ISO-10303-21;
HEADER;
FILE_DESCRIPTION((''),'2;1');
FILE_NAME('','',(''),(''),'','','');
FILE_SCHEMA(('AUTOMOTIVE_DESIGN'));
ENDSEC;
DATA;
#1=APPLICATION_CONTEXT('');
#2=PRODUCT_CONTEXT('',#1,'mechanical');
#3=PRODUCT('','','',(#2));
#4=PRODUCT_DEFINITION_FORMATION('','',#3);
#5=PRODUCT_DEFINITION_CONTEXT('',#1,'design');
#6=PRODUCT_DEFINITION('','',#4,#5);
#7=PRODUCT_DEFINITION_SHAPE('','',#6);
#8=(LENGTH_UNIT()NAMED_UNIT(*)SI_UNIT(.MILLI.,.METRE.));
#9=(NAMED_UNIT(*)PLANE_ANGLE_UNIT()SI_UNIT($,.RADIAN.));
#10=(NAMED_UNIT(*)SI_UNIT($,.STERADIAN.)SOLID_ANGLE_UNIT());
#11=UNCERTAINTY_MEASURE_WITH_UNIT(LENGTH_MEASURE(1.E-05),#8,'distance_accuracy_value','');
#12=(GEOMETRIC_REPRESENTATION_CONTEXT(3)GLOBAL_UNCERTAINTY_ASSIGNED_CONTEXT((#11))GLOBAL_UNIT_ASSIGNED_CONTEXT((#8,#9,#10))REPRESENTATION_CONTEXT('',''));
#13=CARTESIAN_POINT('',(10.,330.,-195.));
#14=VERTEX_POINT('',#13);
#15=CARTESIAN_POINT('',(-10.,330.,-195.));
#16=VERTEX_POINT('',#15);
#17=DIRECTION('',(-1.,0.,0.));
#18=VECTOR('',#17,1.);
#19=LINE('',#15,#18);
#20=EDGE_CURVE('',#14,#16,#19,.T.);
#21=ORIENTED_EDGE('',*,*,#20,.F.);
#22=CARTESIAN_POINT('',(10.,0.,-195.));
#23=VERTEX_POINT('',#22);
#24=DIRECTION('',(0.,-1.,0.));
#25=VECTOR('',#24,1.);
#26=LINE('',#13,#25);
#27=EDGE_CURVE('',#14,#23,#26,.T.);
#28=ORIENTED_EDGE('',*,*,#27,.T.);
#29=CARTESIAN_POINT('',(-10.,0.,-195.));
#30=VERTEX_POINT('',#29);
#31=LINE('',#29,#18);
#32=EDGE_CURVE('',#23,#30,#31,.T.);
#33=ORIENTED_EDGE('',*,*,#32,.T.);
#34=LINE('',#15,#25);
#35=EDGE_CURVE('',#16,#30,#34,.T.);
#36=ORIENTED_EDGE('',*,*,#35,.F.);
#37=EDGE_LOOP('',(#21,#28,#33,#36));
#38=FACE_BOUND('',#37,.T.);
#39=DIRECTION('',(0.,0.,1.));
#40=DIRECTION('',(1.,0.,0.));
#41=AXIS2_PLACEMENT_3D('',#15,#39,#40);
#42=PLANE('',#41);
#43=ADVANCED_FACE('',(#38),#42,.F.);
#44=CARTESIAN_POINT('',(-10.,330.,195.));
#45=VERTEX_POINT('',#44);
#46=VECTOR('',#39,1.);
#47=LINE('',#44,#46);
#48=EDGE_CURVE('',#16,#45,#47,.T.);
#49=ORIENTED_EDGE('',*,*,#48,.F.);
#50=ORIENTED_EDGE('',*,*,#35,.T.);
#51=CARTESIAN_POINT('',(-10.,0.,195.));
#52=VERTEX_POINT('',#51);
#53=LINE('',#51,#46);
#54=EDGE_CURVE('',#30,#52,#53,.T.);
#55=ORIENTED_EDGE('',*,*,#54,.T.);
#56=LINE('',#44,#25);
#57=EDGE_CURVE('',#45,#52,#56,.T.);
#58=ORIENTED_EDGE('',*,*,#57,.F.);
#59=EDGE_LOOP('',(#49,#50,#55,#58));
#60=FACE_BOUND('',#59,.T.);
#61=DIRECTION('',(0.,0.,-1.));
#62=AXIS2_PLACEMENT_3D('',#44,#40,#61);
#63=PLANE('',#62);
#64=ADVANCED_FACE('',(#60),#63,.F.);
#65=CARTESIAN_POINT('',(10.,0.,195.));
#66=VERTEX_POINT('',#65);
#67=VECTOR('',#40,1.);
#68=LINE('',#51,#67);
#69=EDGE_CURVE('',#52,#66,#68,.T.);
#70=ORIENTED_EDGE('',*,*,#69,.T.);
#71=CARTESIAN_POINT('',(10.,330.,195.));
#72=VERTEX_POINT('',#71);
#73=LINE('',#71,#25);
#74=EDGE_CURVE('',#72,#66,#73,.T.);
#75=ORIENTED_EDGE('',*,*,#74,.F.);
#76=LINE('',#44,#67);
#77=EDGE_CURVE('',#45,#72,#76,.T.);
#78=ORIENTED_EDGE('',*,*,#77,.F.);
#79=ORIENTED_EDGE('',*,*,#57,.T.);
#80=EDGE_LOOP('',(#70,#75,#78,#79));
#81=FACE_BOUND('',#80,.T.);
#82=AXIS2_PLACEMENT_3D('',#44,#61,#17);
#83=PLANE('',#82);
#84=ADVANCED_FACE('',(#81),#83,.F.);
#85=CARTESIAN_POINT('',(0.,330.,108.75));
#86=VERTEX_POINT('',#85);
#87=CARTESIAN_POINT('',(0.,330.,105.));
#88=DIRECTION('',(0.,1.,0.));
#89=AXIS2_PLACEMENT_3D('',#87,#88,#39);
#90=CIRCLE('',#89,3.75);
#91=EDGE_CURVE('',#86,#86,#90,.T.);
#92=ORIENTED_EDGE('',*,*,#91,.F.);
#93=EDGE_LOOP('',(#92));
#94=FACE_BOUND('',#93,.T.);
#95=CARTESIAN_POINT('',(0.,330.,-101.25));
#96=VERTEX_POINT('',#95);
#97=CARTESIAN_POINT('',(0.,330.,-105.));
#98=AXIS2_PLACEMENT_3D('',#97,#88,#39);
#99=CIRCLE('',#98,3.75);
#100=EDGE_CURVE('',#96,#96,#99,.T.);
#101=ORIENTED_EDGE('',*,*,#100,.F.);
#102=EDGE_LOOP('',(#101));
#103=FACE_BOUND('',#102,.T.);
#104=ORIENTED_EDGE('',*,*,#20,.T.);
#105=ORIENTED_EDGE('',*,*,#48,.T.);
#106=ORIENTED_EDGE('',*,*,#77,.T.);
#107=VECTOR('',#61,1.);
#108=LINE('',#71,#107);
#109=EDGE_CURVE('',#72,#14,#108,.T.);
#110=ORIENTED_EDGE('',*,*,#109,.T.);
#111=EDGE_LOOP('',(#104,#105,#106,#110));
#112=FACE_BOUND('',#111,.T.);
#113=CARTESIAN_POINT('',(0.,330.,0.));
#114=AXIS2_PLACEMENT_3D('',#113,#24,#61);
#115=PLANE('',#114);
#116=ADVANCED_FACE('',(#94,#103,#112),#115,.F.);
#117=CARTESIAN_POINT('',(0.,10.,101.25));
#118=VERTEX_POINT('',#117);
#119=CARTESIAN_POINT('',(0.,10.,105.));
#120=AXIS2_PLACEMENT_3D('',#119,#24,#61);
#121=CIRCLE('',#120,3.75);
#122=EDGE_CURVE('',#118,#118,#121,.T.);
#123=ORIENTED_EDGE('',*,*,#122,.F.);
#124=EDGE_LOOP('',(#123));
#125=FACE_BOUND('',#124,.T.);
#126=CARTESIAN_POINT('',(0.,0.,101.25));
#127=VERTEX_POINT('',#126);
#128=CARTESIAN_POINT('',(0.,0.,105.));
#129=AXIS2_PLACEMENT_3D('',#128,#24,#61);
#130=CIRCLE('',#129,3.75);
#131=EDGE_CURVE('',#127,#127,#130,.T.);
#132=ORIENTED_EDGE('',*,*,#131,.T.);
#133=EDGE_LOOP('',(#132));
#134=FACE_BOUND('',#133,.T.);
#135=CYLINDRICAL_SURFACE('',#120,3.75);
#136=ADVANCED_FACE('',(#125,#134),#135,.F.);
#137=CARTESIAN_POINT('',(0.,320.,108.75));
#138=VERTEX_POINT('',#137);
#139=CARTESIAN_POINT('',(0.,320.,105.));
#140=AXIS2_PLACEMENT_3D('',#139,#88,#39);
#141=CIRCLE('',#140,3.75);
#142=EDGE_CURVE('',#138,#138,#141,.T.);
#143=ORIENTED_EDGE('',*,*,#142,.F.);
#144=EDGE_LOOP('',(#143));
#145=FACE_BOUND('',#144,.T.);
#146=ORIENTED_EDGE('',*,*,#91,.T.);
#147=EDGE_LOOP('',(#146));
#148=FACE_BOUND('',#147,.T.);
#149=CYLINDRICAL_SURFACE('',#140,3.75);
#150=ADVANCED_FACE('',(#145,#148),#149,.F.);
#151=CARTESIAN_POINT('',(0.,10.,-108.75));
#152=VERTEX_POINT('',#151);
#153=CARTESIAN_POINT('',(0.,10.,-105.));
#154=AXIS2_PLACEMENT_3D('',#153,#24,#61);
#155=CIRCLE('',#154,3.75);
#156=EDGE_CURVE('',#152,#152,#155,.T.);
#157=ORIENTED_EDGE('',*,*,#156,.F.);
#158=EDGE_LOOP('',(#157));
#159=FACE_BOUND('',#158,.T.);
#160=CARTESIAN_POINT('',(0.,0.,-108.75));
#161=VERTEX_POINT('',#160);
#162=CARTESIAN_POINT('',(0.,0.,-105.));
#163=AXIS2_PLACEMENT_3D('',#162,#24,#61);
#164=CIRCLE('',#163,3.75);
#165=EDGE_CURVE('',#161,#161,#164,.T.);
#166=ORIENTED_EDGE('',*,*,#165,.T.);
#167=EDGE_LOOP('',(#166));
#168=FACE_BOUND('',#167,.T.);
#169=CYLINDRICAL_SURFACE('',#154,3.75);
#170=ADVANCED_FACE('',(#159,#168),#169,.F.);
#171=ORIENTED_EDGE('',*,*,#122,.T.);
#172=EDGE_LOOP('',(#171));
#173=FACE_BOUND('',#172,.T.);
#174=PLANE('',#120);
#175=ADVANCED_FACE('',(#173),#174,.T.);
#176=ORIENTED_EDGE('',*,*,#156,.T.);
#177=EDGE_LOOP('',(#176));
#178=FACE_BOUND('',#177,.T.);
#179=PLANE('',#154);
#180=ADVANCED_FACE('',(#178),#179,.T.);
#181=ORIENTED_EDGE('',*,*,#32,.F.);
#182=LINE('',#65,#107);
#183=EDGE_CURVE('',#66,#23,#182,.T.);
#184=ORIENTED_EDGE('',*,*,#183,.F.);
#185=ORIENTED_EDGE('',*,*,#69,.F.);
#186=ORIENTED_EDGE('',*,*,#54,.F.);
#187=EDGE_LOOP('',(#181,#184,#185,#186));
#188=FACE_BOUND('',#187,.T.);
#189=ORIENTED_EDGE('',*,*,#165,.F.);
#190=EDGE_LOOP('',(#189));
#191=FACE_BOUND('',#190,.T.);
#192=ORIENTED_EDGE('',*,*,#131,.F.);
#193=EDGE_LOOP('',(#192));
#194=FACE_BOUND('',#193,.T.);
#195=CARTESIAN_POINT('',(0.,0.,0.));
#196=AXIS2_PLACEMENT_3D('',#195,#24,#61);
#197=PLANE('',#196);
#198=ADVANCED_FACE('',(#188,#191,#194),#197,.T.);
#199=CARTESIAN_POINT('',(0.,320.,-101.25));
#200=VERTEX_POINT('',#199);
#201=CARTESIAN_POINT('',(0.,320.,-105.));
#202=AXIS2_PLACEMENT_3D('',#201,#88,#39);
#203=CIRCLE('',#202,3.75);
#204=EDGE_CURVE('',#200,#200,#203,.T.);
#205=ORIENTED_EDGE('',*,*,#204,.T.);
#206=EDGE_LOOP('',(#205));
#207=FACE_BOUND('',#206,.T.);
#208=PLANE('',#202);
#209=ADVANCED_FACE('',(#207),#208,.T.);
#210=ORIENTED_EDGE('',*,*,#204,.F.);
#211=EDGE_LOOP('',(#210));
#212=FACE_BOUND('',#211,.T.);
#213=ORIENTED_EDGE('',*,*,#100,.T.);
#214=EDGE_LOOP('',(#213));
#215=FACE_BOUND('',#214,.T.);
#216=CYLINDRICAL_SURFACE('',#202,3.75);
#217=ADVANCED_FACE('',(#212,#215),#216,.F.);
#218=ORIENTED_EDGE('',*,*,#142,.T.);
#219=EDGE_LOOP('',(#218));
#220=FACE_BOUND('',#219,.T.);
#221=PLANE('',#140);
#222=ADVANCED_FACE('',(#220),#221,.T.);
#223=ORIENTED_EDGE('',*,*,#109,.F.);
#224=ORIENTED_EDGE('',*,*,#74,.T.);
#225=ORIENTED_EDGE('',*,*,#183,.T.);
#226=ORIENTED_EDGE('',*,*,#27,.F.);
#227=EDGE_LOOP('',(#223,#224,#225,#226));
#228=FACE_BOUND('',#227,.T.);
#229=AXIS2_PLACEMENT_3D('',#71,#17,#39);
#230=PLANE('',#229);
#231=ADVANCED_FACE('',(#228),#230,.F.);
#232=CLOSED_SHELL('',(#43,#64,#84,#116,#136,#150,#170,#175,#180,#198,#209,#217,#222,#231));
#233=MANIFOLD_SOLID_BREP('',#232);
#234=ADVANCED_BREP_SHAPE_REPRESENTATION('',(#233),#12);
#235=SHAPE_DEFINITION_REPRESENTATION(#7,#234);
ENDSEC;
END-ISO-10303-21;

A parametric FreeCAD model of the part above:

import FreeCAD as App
import Part
import Sketcher
Q = App.Units.Quantity

doc = App.newDocument("Part")
body = doc.addObject("PartDesign::Body", "Body")

# Sketch on XZ plane
sketch1 = body.newObject("Sketcher::SketchObject", "Sketch")
sketch1.AttachmentSupport = (doc.getObject("XZ_Plane"), [""])
sketch1.MapMode = "FlatFace"
sketch1.addGeometry(Part.LineSegment(App.Vector(-10, -195, 0), App.Vector(-10, 195, 0)), False)
sketch1.addGeometry(Part.LineSegment(App.Vector(-10, 195, 0), App.Vector(10, 195, 0)), False)
sketch1.addGeometry(Part.LineSegment(App.Vector(10, 195, 0), App.Vector(10, -195, 0)), False)
sketch1.addGeometry(Part.LineSegment(App.Vector(10, -195, 0), App.Vector(-10, -195, 0)), False)
sketch1.addConstraint(Sketcher.Constraint("Coincident", 0, 2, 1, 1))
sketch1.addConstraint(Sketcher.Constraint("Coincident", 1, 2, 2, 1))
sketch1.addConstraint(Sketcher.Constraint("Coincident", 2, 2, 3, 1))
sketch1.addConstraint(Sketcher.Constraint("Coincident", 3, 2, 0, 1))
sketch1.addConstraint(Sketcher.Constraint("Vertical", 0))
sketch1.addConstraint(Sketcher.Constraint("Horizontal", 1))
sketch1.addConstraint(Sketcher.Constraint("Vertical", 2))
sketch1.addConstraint(Sketcher.Constraint("Horizontal", 3))
sketch1.addConstraint(Sketcher.Constraint("Symmetric", 0, 2, 2, 2, -1, 1))
sketch1.addConstraint(Sketcher.Constraint("DistanceX", 1, 1, 1, 2, Q("20 mm")))
sketch1.addConstraint(Sketcher.Constraint("DistanceY", 0, 1, 0, 2, Q("390 mm")))
pad1 = body.newObject("PartDesign::Pad", "Pad")
pad1.Profile = sketch1
pad1.Length = 330
pad1.Reversed = True

# Sketch on XZ plane
sketch2 = body.newObject("Sketcher::SketchObject", "Sketch001")
sketch2.AttachmentSupport = (doc.getObject("XZ_Plane"), [""])
sketch2.MapMode = "FlatFace"
sketch2.AttachmentOffset = App.Placement(App.Vector(0, 0, -330), App.Rotation())
sketch2.addGeometry(Part.Circle(App.Vector(0, -105, 0), App.Vector(0, 0, 1), 3.75), False)
sketch2.addGeometry(Part.Circle(App.Vector(0, 105, 0), App.Vector(0, 0, 1), 3.75), False)
sketch2.addConstraint(Sketcher.Constraint("Equal", 0, 1))
sketch2.addConstraint(Sketcher.Constraint("Symmetric", 0, 3, 1, 3, -1, 1))
sketch2.addConstraint(Sketcher.Constraint("PointOnObject", 0, 3, -2))
sketch2.addConstraint(Sketcher.Constraint("Diameter", 0, Q("7.5 mm")))
sketch2.addConstraint(Sketcher.Constraint("DistanceY", 0, 3, -1, 1, Q("105 mm")))
pocket1 = body.newObject("PartDesign::Pocket", "Pocket")
pocket1.Profile = sketch2
pocket1.Length = 10
pocket1.Reversed = True

# Sketch on XZ plane
sketch3 = body.newObject("Sketcher::SketchObject", "Sketch002")
sketch3.AttachmentSupport = (doc.getObject("XZ_Plane"), [""])
sketch3.MapMode = "FlatFace"
sketch3.AttachmentOffset = App.Placement(App.Vector(0, 0, -10), App.Rotation())
sketch3.addGeometry(Part.Circle(App.Vector(0, -105, 0), App.Vector(0, 0, 1), 3.75), False)
sketch3.addGeometry(Part.Circle(App.Vector(0, 105, 0), App.Vector(0, 0, 1), 3.75), False)
sketch3.addConstraint(Sketcher.Constraint("Equal", 0, 1))
sketch3.addConstraint(Sketcher.Constraint("Symmetric", 0, 3, 1, 3, -1, 1))
sketch3.addConstraint(Sketcher.Constraint("PointOnObject", 0, 3, -2))
sketch3.addConstraint(Sketcher.Constraint("Diameter", 0, Q("7.5 mm")))
sketch3.addConstraint(Sketcher.Constraint("DistanceY", 0, 3, -1, 1, Q("105 mm")))
pocket2 = body.newObject("PartDesign::Pocket", "Pocket001")
pocket2.Profile = sketch3
pocket2.Length = 10
pocket2.Reversed = True

doc.recompute()
